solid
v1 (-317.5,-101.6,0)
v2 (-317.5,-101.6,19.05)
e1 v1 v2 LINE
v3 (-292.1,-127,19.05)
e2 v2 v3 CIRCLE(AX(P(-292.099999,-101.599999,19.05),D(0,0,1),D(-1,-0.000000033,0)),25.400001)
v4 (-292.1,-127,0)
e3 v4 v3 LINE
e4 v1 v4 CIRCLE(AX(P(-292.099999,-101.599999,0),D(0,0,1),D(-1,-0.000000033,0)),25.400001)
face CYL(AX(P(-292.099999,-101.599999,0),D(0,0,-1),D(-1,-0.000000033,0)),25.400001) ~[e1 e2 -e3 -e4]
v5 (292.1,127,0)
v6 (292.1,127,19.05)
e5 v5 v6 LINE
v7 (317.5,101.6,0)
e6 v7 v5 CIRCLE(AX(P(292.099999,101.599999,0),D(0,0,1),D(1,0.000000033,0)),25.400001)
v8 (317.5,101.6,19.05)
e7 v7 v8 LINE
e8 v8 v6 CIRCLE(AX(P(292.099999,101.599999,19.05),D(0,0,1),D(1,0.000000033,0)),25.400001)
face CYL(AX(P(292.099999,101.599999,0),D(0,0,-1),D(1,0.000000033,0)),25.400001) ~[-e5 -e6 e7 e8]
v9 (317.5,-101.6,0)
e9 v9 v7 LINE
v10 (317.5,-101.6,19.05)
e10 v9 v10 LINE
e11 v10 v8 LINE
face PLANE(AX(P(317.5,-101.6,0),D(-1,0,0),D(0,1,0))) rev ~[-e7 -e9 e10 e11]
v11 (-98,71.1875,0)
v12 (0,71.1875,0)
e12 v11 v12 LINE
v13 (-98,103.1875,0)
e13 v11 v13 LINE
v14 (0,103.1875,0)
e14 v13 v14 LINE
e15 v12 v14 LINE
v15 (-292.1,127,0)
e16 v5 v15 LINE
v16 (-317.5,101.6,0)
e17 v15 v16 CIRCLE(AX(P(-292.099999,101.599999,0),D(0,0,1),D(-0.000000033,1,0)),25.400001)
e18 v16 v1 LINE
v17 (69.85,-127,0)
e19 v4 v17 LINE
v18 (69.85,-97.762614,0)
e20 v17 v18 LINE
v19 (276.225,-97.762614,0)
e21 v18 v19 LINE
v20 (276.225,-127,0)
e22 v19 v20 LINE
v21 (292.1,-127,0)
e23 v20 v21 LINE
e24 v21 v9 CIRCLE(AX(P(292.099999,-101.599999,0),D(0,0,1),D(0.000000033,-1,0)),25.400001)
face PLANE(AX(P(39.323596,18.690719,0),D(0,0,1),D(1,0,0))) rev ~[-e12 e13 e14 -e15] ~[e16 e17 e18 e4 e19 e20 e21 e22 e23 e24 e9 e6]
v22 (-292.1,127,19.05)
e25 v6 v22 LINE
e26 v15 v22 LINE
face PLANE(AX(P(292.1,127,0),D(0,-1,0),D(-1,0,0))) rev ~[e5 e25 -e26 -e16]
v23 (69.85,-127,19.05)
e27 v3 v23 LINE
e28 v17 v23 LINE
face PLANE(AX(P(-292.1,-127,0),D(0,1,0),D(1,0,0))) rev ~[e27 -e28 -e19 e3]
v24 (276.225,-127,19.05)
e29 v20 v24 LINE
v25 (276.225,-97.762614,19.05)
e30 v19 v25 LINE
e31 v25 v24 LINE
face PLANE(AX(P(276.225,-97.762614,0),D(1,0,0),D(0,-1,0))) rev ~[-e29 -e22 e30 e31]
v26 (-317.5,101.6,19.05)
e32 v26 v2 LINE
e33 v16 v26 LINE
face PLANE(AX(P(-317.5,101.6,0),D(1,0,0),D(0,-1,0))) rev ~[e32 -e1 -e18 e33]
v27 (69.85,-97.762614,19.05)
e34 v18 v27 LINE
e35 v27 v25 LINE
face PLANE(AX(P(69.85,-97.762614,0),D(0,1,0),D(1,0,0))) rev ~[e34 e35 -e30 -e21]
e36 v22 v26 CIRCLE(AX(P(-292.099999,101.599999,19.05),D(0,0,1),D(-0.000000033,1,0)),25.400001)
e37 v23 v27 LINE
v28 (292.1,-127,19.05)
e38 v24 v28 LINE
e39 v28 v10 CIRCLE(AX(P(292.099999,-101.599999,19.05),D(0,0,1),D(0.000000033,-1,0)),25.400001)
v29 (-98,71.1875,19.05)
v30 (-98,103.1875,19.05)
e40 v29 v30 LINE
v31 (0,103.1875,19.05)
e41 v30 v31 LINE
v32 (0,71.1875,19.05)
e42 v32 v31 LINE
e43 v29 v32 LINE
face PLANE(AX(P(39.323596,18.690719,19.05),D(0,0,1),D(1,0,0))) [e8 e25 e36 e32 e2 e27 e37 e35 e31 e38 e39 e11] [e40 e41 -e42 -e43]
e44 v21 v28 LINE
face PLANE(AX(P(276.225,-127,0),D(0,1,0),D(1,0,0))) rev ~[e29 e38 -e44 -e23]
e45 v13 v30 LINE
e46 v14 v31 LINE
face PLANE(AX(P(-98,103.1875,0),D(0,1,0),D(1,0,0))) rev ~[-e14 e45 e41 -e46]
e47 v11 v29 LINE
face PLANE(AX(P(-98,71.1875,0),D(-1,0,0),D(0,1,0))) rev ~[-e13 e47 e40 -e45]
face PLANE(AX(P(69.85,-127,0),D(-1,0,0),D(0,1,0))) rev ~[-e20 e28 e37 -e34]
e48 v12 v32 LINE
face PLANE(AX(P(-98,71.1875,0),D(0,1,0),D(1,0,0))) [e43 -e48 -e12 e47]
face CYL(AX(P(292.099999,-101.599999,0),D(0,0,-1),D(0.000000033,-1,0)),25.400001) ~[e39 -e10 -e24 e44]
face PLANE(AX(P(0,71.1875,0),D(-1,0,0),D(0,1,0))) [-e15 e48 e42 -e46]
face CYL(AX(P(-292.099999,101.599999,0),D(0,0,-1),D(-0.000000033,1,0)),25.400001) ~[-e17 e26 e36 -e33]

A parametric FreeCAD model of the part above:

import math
import FreeCAD as App
import Part
import Sketcher

V = App.Vector
Q = App.Units.Quantity

doc = App.newDocument("Part")
params = doc.addObject("Spreadsheet::Sheet", "Params")
for row, (alias, value) in enumerate([
    ("sketch1_radius", "1 in"),
    ("sketch1_width", "23 in"),
    ("sketch1_height", "8 in"),
    ("sketch1_width2", "14.25 in"),
    ("sketch1_width3", "0.625 in"),
    ("pad1_length", "0.75 in"),
], start=1):
    params.set(f"A{row}", alias)
    params.set(f"B{row}", "=" + value)
    params.setAlias(f"B{row}", alias)

body = doc.addObject("PartDesign::Body", "Body")

sketch1 = body.newObject("Sketcher::SketchObject", "Sketch")
sketch1.AttachmentSupport = (doc.getObject("XY_Plane"), [""])
sketch1.MapMode = "FlatFace"
sketch1.addGeometry([
    Part.LineSegment(V(276.225, -127, 0), V(292.1, -127, 0)),
    Part.ArcOfCircle(Part.Circle(V(292.099999, -101.599999, 0), V(0, 0, 1), 25.400001), math.radians(-89.999998), math.radians(-0.000002)),
    Part.LineSegment(V(317.5, -101.6, 0), V(317.5, 101.6, 0)),
    Part.ArcOfCircle(Part.Circle(V(292.099999, 101.599999, 0), V(0, 0, 1), 25.400001), math.radians(0.000002), math.radians(89.999998)),
    Part.LineSegment(V(292.1, 127, 0), V(-292.1, 127, 0)),
    Part.ArcOfCircle(Part.Circle(V(-292.099999, 101.599999, 0), V(0, 0, 1), 25.400001), math.radians(90.000002), math.radians(179.999998)),
    Part.LineSegment(V(-317.5, 101.6, 0), V(-317.5, -101.6, 0)),
    Part.ArcOfCircle(Part.Circle(V(-292.099999, -101.599999, 0), V(0, 0, 1), 25.400001), math.radians(-179.999998), math.radians(-90.000002)),
    Part.LineSegment(V(-292.1, -127, 0), V(69.85, -127, 0)),
    Part.LineSegment(V(69.85, -127, 0), V(69.85, -97.762614, 0)),
    Part.LineSegment(V(69.85, -97.762614, 0), V(276.225, -97.762614, 0)),
    Part.LineSegment(V(276.225, -97.762614, 0), V(276.225, -127, 0)),
    Part.LineSegment(V(0, 71.1875, 0), V(-98, 71.1875, 0)),
    Part.LineSegment(V(-98, 71.1875, 0), V(-98, 103.1875, 0)),
    Part.LineSegment(V(-98, 103.1875, 0), V(0, 103.1875, 0)),
    Part.LineSegment(V(0, 103.1875, 0), V(0, 71.1875, 0)),
], False)
sketch1.addConstraint([
    Sketcher.Constraint("Tangent", 0, 2, 1, 1),
    Sketcher.Constraint("Tangent", 1, 2, 2, 1),
    Sketcher.Constraint("Tangent", 2, 2, 3, 1),
    Sketcher.Constraint("Tangent", 3, 2, 4, 1),
    Sketcher.Constraint("Tangent", 4, 2, 5, 1),
    Sketcher.Constraint("Tangent", 5, 2, 6, 1),
    Sketcher.Constraint("Tangent", 6, 2, 7, 1),
    Sketcher.Constraint("Tangent", 7, 2, 8, 1),
    Sketcher.Constraint("Coincident", 8, 2, 9, 1),
    Sketcher.Constraint("Coincident", 9, 2, 10, 1),
    Sketcher.Constraint("Coincident", 10, 2, 11, 1),
    Sketcher.Constraint("Coincident", 11, 2, 0, 1),
    Sketcher.Constraint("Coincident", 12, 2, 13, 1),
    Sketcher.Constraint("Coincident", 13, 2, 14, 1),
    Sketcher.Constraint("Coincident", 14, 2, 15, 1),
    Sketcher.Constraint("Coincident", 15, 2, 12, 1),
    Sketcher.Constraint("Horizontal", 0),
    Sketcher.Constraint("Vertical", 2),
    Sketcher.Constraint("Horizontal", 4),
    Sketcher.Constraint("Vertical", 6),
    Sketcher.Constraint("Horizontal", 8),
    Sketcher.Constraint("Vertical", 9),
    Sketcher.Constraint("Horizontal", 10),
    Sketcher.Constraint("Vertical", 11),
    Sketcher.Constraint("Horizontal", 12),
    Sketcher.Constraint("Vertical", 13),
    Sketcher.Constraint("Horizontal", 14),
    Sketcher.Constraint("Vertical", 15),
    Sketcher.Constraint("Equal", 1, 3),
    Sketcher.Constraint("Equal", 3, 5),
    Sketcher.Constraint("Equal", 5, 7),
    Sketcher.Constraint("Symmetric", 1, 3, 5, 3, -1, 1),
    Sketcher.Constraint("PointOnObject", 14, 2, -2),
    Sketcher.Constraint("Horizontal", 1, 3, 7, 3),
    Sketcher.Constraint("Radius", 1, Q("1 in")),
    Sketcher.Constraint("DistanceX", 4, 2, 4, 1, Q("23 in")),
    Sketcher.Constraint("DistanceY", 2, 1, 2, 2, Q("8 in")),
    Sketcher.Constraint("DistanceX", 8, 1, 8, 2, Q("14.25 in")),
    Sketcher.Constraint("DistanceX", 0, 1, 0, 2, Q("0.625 in")),
    Sketcher.Constraint("DistanceY", -1, 1, 13, 2, Q("4.0625 in")),
    Sketcher.Constraint("DistanceX", 12, 2, 12, 1, 98.0),
    Sketcher.Constraint("DistanceY", 13, 1, 13, 2, 32.0),
    Sketcher.Constraint("DistanceY", 9, 1, 9, 2, 29.237386),
])
sketch1.setExpression("Constraints[34]", "Params.sketch1_radius")
sketch1.setExpression("Constraints[35]", "Params.sketch1_width")
sketch1.setExpression("Constraints[36]", "Params.sketch1_height")
sketch1.setExpression("Constraints[37]", "Params.sketch1_width2")
sketch1.setExpression("Constraints[38]", "Params.sketch1_width3")
pad1 = body.newObject("PartDesign::Pad", "Pad")
pad1.Profile = sketch1
pad1.setExpression("Length", "Params.pad1_length")

doc.recompute()
